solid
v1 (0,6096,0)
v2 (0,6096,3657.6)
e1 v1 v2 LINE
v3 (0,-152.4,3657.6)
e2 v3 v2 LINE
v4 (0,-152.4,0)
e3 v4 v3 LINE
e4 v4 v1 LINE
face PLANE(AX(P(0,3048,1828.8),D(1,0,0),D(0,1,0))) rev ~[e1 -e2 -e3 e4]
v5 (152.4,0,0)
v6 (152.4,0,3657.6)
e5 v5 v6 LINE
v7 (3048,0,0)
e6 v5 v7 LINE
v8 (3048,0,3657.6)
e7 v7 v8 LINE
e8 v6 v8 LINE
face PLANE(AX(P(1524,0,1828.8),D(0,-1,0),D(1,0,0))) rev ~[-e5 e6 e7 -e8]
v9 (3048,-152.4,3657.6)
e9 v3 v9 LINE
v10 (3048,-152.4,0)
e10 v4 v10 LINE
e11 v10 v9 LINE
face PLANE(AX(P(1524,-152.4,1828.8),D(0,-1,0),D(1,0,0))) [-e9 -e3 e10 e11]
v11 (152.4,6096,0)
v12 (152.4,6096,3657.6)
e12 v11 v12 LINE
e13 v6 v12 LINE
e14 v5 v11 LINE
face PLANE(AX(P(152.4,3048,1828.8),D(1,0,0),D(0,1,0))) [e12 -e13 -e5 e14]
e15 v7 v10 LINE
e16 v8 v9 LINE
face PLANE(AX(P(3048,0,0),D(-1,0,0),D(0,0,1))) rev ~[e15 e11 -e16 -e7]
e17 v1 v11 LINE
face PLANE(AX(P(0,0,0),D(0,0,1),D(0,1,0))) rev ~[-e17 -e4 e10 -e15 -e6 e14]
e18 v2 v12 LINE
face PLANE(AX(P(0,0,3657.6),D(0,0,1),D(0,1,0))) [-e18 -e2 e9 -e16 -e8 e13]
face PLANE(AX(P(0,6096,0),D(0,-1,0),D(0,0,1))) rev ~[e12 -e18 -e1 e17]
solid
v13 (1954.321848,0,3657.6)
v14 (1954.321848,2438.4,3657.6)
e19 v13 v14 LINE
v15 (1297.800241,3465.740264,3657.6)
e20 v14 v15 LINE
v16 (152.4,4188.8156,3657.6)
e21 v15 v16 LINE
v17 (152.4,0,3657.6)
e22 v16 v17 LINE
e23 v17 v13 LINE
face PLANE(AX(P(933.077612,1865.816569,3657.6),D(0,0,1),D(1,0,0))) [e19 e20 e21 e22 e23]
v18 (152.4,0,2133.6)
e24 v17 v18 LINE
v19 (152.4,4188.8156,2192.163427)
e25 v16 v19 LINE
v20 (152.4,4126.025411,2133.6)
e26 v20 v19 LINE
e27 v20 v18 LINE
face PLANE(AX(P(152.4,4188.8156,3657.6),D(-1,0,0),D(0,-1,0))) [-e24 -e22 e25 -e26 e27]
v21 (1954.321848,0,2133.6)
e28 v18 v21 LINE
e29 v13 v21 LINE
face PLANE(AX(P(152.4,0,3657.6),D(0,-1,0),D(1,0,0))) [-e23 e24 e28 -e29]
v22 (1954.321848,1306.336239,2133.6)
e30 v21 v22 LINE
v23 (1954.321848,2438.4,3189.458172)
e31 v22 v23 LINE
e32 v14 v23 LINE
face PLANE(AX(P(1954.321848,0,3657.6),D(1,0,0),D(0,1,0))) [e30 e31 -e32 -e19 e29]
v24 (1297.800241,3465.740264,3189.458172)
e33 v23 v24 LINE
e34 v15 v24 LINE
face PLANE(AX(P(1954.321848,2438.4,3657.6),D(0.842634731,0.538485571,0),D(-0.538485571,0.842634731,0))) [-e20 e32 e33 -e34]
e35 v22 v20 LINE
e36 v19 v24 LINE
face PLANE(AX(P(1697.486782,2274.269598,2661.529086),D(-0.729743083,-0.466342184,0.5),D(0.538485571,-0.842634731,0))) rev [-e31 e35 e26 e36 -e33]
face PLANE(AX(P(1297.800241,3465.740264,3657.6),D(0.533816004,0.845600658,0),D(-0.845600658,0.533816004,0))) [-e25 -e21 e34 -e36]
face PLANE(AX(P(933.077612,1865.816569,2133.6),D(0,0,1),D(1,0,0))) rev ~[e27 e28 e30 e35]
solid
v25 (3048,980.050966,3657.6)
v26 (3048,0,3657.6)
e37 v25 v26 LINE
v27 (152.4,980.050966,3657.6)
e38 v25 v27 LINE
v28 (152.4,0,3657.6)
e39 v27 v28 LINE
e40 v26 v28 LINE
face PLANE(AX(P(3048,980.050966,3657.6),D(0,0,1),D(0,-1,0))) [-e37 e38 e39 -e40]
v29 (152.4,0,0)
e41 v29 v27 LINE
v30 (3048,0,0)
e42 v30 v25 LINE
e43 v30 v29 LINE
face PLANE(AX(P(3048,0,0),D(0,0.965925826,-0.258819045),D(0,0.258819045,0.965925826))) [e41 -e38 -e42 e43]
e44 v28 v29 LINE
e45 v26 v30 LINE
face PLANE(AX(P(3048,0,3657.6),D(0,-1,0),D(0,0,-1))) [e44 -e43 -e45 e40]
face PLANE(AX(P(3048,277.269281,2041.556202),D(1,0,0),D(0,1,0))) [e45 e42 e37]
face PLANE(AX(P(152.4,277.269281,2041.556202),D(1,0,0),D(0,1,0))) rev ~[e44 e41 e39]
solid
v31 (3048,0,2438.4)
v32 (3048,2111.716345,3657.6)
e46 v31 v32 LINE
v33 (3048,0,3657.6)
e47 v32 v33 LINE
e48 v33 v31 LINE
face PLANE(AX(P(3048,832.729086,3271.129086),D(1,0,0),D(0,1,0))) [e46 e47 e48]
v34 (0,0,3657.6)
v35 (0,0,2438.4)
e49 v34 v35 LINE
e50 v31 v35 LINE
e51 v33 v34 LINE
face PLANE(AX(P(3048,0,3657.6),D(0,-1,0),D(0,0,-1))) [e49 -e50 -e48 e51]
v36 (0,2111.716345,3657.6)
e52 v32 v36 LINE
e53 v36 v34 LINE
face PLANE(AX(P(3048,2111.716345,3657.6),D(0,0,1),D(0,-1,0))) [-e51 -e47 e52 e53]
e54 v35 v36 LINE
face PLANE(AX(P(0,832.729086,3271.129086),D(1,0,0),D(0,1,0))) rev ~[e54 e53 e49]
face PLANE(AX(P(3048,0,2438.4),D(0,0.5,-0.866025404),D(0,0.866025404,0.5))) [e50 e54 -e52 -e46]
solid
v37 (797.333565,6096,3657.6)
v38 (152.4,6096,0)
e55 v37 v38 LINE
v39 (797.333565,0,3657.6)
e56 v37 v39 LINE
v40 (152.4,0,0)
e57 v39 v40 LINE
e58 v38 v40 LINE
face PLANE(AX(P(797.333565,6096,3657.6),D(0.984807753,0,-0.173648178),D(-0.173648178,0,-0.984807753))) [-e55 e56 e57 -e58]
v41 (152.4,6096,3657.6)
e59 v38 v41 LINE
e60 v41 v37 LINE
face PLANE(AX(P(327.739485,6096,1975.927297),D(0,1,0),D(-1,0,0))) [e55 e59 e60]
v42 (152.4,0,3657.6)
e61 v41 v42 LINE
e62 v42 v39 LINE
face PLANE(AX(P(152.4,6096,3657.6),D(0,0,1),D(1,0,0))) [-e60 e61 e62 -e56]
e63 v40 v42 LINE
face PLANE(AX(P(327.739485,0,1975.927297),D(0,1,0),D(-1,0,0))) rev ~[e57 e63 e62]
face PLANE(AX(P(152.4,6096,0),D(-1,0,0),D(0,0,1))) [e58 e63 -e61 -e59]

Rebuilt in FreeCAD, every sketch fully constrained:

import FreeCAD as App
import Part
import Sketcher
from FreeCAD import Vector
Q = App.Units.Quantity


def edges_at(feature, points):
    """Names of the edges that pass closest to the given points."""
    edges = feature.Shape.Edges
    near = lambda p: min(range(len(edges)), key=lambda i: edges[i].distToShape(Part.Vertex(*p))[0])
    return sorted({f"Edge{near(p) + 1}" for p in points})

doc = App.newDocument("Part")
body = doc.addObject("PartDesign::Body", "Body")

# Sketch on XZ plane
sketch1 = body.newObject("Sketcher::SketchObject", "Sketch")
sketch1.AttachmentSupport = (doc.getObject("XZ_Plane"), [""])
sketch1.MapMode = "FlatFace"
sketch1.addGeometry([
    Part.LineSegment(Vector(0, 3658, 0), Vector(0, 0, 0)),
    Part.LineSegment(Vector(0, 0, 0), Vector(3048, 0, 0)),
    Part.LineSegment(Vector(3048, 0, 0), Vector(3048, 3658, 0)),
    Part.LineSegment(Vector(3048, 3658, 0), Vector(0, 3658, 0)),
], False)
sketch1.addConstraint([
    Sketcher.Constraint("Coincident", 0, 2, 1, 1),
    Sketcher.Constraint("Coincident", 1, 2, 2, 1),
    Sketcher.Constraint("Coincident", 2, 2, 3, 1),
    Sketcher.Constraint("Coincident", 3, 2, 0, 1),
    Sketcher.Constraint("Vertical", 0),
    Sketcher.Constraint("Horizontal", 1),
    Sketcher.Constraint("Vertical", 2),
    Sketcher.Constraint("Horizontal", 3),
    Sketcher.Constraint("Coincident", 0, 2, -1, 1),
    Sketcher.Constraint("DistanceX", 1, 1, 1, 2, Q("120 in")),
    Sketcher.Constraint("DistanceY", 0, 2, 0, 1, Q("144 in")),
])
pad1 = body.newObject("PartDesign::Pad", "Pad")
pad1.Profile = sketch1
pad1.Length = Q("6 in")

# Sketch on YZ plane
sketch2 = body.newObject("Sketcher::SketchObject", "Sketch001")
sketch2.AttachmentSupport = (doc.getObject("YZ_Plane"), [""])
sketch2.MapMode = "FlatFace"
sketch2.addGeometry([
    Part.LineSegment(Vector(0, 3658, 0), Vector(0, 0, 0)),
    Part.LineSegment(Vector(0, 0, 0), Vector(6096, 0, 0)),
    Part.LineSegment(Vector(6096, 0, 0), Vector(6096, 3658, 0)),
    Part.LineSegment(Vector(6096, 3658, 0), Vector(0, 3658, 0)),
], False)
sketch2.addConstraint([
    Sketcher.Constraint("Coincident", 0, 2, 1, 1),
    Sketcher.Constraint("Coincident", 1, 2, 2, 1),
    Sketcher.Constraint("Coincident", 2, 2, 3, 1),
    Sketcher.Constraint("Coincident", 3, 2, 0, 1),
    Sketcher.Constraint("Vertical", 0),
    Sketcher.Constraint("Horizontal", 1),
    Sketcher.Constraint("Vertical", 2),
    Sketcher.Constraint("Horizontal", 3),
    Sketcher.Constraint("Coincident", 0, 2, -1, 1),
    Sketcher.Constraint("DistanceX", 1, 1, 1, 2, Q("240 in")),
    Sketcher.Constraint("DistanceY", 0, 2, 0, 1, Q("144 in")),
])
pad2 = body.newObject("PartDesign::Pad", "Pad001")
pad2.Profile = sketch2
pad2.Length = Q("6 in")
body2 = doc.addObject("PartDesign::Body", "Body001")

# Sketch on YZ plane
sketch3 = body2.newObject("Sketcher::SketchObject", "Sketch002")
sketch3.AttachmentSupport = (doc.getObject("YZ_Plane001"), [""])
sketch3.MapMode = "FlatFace"
sketch3.AttachmentOffset = App.Placement(Vector(0, 0, 120 * 25.4), App.Rotation())
sketch3.addGeometry([
    Part.LineSegment(Vector(0, 3658, 0), Vector(0, 0, 0)),
    Part.LineSegment(Vector(0, 0, 0), Vector(980, 3658, 0)),
    Part.LineSegment(Vector(980, 3658, 0), Vector(0, 3658, 0)),
], False)
sketch3.addConstraint([
    Sketcher.Constraint("Coincident", 0, 2, 1, 1),
    Sketcher.Constraint("Coincident", 1, 2, 2, 1),
    Sketcher.Constraint("Coincident", 2, 2, 0, 1),
    Sketcher.Constraint("Vertical", 0),
    Sketcher.Constraint("Horizontal", 2),
    Sketcher.Constraint("Coincident", 0, 2, -1, 1),
    Sketcher.Constraint("DistanceY", 0, 2, 0, 1, Q("144 in")),
    Sketcher.Constraint("Angle", 1, Q("75 deg")),
])
pad3 = body2.newObject("PartDesign::Pad", "Pad002")
pad3.Profile = sketch3
pad3.Length = Q("114 in")
pad3.Reversed = True
body3 = doc.addObject("PartDesign::Body", "Body002")

# Sketch on XY plane
sketch4 = body3.newObject("Sketcher::SketchObject", "Sketch003")
sketch4.AttachmentSupport = (doc.getObject("XY_Plane002"), [""])
sketch4.MapMode = "FlatFace"
sketch4.AttachmentOffset = App.Placement(Vector(0, 0, 144 * 25.4), App.Rotation())
sketch4.addGeometry([
    Part.LineSegment(Vector(1954, 2438, 0), Vector(1298, 3466, 0)),  # 0
    Part.LineSegment(Vector(1298, 3466, 0), Vector(152, 4189, 0)),  # 1
    Part.LineSegment(Vector(152, 4189, 0), Vector(152, 0, 0)),  # 2
    Part.LineSegment(Vector(152, 0, 0), Vector(1954, 0, 0)),  # 3
    Part.LineSegment(Vector(1954, 0, 0), Vector(1954, 2438, 0)),  # 4
], False)
sketch4.addConstraint([
    Sketcher.Constraint("Coincident", 0, 2, 1, 1),
    Sketcher.Constraint("Coincident", 1, 2, 2, 1),
    Sketcher.Constraint("Coincident", 2, 2, 3, 1),
    Sketcher.Constraint("Coincident", 3, 2, 4, 1),
    Sketcher.Constraint("Coincident", 4, 2, 0, 1),
    Sketcher.Constraint("Vertical", 2),
    Sketcher.Constraint("Horizontal", 3),
    Sketcher.Constraint("Vertical", 4),
    Sketcher.Constraint("PointOnObject", 2, 2, -1),
    Sketcher.Constraint("DistanceY", 4, 1, 4, 2, Q("96 in")),
    Sketcher.Constraint("Distance", 0, Q("48 in")),
    Sketcher.Constraint("DistanceX", -1, 1, 1, 2, Q("6 in")),
    Sketcher.Constraint("DistanceY", 2, 2, 2, 1, Q("164.914 in")),
    Sketcher.Constraint("DistanceX", 3, 1, 3, 2, 1801.921848),
    Sketcher.Constraint("DistanceX", -1, 1, 0, 2, 1297.800241),
])
pad4 = body3.newObject("PartDesign::Pad", "Pad003")
pad4.Profile = sketch4
pad4.Length = Q("60 in")
pad4.Reversed = True
doc.recompute()

chamfer = body3.newObject("PartDesign::Chamfer", "Chamfer")
chamfer.Base = (pad4, edges_at(pad4, [(1626.061, 2952.07, 2133.6)]))
chamfer.ChamferType = "Two distances"
chamfer.Size = Q("24 in")
chamfer.Size2 = 1055.858172
chamfer.FlipDirection = True
body4 = doc.addObject("PartDesign::Body", "Body003")

# Sketch on XZ plane
sketch5 = body4.newObject("Sketcher::SketchObject", "Sketch004")
sketch5.AttachmentSupport = (doc.getObject("XZ_Plane003"), [""])
sketch5.MapMode = "FlatFace"
sketch5.AttachmentOffset = App.Placement(Vector(0, 0, -240 * 25.4), App.Rotation())
sketch5.addGeometry([
    Part.LineSegment(Vector(797, 3658, 0), Vector(152, 0, 0)),
    Part.LineSegment(Vector(152, 0, 0), Vector(152, 3658, 0)),
    Part.LineSegment(Vector(152, 3658, 0), Vector(797, 3658, 0)),
], False)
sketch5.addConstraint([
    Sketcher.Constraint("Coincident", 0, 2, 1, 1),
    Sketcher.Constraint("Coincident", 1, 2, 2, 1),
    Sketcher.Constraint("Coincident", 2, 2, 0, 1),
    Sketcher.Constraint("Vertical", 1),
    Sketcher.Constraint("Horizontal", 2),
    Sketcher.Constraint("PointOnObject", 0, 2, -1),
    Sketcher.Constraint("DistanceY", 1, 1, 1, 2, Q("144 in")),
    Sketcher.Constraint("DistanceX", -1, 1, 0, 2, Q("6 in")),
    Sketcher.Constraint("Angle", 0, Q("-100 deg")),
])
pad5 = body4.newObject("PartDesign::Pad", "Pad004")
pad5.Profile = sketch5
pad5.Length = Q("240 in")
body5 = doc.addObject("PartDesign::Body", "Body004")

# Sketch on YZ plane
sketch6 = body5.newObject("Sketcher::SketchObject", "Sketch005")
sketch6.AttachmentSupport = (doc.getObject("YZ_Plane004"), [""])
sketch6.MapMode = "FlatFace"
sketch6.AttachmentOffset = App.Placement(Vector(0, 0, 120 * 25.4), App.Rotation())
sketch6.addGeometry([
    Part.LineSegment(Vector(2112, 3658, 0), Vector(0, 3658, 0)),
    Part.LineSegment(Vector(0, 3658, 0), Vector(0, 2438, 0)),
    Part.LineSegment(Vector(0, 2438, 0), Vector(2112, 3658, 0)),
], False)
sketch6.addConstraint([
    Sketcher.Constraint("Coincident", 0, 2, 1, 1),
    Sketcher.Constraint("Coincident", 1, 2, 2, 1),
    Sketcher.Constraint("Coincident", 2, 2, 0, 1),
    Sketcher.Constraint("Horizontal", 0),
    Sketcher.Constraint("Vertical", 1),
    Sketcher.Constraint("PointOnObject", 0, 2, -2),
    Sketcher.Constraint("DistanceY", 1, 2, 1, 1, Q("48 in")),
    Sketcher.Constraint("Distance", 2, Q("96 in")),
    Sketcher.Constraint("DistanceY", -1, 1, 0, 2, Q("144 in")),
])
pad6 = body5.newObject("PartDesign::Pad", "Pad005")
pad6.Profile = sketch6
pad6.Length = Q("120 in")
pad6.Reversed = True

doc.recompute()
